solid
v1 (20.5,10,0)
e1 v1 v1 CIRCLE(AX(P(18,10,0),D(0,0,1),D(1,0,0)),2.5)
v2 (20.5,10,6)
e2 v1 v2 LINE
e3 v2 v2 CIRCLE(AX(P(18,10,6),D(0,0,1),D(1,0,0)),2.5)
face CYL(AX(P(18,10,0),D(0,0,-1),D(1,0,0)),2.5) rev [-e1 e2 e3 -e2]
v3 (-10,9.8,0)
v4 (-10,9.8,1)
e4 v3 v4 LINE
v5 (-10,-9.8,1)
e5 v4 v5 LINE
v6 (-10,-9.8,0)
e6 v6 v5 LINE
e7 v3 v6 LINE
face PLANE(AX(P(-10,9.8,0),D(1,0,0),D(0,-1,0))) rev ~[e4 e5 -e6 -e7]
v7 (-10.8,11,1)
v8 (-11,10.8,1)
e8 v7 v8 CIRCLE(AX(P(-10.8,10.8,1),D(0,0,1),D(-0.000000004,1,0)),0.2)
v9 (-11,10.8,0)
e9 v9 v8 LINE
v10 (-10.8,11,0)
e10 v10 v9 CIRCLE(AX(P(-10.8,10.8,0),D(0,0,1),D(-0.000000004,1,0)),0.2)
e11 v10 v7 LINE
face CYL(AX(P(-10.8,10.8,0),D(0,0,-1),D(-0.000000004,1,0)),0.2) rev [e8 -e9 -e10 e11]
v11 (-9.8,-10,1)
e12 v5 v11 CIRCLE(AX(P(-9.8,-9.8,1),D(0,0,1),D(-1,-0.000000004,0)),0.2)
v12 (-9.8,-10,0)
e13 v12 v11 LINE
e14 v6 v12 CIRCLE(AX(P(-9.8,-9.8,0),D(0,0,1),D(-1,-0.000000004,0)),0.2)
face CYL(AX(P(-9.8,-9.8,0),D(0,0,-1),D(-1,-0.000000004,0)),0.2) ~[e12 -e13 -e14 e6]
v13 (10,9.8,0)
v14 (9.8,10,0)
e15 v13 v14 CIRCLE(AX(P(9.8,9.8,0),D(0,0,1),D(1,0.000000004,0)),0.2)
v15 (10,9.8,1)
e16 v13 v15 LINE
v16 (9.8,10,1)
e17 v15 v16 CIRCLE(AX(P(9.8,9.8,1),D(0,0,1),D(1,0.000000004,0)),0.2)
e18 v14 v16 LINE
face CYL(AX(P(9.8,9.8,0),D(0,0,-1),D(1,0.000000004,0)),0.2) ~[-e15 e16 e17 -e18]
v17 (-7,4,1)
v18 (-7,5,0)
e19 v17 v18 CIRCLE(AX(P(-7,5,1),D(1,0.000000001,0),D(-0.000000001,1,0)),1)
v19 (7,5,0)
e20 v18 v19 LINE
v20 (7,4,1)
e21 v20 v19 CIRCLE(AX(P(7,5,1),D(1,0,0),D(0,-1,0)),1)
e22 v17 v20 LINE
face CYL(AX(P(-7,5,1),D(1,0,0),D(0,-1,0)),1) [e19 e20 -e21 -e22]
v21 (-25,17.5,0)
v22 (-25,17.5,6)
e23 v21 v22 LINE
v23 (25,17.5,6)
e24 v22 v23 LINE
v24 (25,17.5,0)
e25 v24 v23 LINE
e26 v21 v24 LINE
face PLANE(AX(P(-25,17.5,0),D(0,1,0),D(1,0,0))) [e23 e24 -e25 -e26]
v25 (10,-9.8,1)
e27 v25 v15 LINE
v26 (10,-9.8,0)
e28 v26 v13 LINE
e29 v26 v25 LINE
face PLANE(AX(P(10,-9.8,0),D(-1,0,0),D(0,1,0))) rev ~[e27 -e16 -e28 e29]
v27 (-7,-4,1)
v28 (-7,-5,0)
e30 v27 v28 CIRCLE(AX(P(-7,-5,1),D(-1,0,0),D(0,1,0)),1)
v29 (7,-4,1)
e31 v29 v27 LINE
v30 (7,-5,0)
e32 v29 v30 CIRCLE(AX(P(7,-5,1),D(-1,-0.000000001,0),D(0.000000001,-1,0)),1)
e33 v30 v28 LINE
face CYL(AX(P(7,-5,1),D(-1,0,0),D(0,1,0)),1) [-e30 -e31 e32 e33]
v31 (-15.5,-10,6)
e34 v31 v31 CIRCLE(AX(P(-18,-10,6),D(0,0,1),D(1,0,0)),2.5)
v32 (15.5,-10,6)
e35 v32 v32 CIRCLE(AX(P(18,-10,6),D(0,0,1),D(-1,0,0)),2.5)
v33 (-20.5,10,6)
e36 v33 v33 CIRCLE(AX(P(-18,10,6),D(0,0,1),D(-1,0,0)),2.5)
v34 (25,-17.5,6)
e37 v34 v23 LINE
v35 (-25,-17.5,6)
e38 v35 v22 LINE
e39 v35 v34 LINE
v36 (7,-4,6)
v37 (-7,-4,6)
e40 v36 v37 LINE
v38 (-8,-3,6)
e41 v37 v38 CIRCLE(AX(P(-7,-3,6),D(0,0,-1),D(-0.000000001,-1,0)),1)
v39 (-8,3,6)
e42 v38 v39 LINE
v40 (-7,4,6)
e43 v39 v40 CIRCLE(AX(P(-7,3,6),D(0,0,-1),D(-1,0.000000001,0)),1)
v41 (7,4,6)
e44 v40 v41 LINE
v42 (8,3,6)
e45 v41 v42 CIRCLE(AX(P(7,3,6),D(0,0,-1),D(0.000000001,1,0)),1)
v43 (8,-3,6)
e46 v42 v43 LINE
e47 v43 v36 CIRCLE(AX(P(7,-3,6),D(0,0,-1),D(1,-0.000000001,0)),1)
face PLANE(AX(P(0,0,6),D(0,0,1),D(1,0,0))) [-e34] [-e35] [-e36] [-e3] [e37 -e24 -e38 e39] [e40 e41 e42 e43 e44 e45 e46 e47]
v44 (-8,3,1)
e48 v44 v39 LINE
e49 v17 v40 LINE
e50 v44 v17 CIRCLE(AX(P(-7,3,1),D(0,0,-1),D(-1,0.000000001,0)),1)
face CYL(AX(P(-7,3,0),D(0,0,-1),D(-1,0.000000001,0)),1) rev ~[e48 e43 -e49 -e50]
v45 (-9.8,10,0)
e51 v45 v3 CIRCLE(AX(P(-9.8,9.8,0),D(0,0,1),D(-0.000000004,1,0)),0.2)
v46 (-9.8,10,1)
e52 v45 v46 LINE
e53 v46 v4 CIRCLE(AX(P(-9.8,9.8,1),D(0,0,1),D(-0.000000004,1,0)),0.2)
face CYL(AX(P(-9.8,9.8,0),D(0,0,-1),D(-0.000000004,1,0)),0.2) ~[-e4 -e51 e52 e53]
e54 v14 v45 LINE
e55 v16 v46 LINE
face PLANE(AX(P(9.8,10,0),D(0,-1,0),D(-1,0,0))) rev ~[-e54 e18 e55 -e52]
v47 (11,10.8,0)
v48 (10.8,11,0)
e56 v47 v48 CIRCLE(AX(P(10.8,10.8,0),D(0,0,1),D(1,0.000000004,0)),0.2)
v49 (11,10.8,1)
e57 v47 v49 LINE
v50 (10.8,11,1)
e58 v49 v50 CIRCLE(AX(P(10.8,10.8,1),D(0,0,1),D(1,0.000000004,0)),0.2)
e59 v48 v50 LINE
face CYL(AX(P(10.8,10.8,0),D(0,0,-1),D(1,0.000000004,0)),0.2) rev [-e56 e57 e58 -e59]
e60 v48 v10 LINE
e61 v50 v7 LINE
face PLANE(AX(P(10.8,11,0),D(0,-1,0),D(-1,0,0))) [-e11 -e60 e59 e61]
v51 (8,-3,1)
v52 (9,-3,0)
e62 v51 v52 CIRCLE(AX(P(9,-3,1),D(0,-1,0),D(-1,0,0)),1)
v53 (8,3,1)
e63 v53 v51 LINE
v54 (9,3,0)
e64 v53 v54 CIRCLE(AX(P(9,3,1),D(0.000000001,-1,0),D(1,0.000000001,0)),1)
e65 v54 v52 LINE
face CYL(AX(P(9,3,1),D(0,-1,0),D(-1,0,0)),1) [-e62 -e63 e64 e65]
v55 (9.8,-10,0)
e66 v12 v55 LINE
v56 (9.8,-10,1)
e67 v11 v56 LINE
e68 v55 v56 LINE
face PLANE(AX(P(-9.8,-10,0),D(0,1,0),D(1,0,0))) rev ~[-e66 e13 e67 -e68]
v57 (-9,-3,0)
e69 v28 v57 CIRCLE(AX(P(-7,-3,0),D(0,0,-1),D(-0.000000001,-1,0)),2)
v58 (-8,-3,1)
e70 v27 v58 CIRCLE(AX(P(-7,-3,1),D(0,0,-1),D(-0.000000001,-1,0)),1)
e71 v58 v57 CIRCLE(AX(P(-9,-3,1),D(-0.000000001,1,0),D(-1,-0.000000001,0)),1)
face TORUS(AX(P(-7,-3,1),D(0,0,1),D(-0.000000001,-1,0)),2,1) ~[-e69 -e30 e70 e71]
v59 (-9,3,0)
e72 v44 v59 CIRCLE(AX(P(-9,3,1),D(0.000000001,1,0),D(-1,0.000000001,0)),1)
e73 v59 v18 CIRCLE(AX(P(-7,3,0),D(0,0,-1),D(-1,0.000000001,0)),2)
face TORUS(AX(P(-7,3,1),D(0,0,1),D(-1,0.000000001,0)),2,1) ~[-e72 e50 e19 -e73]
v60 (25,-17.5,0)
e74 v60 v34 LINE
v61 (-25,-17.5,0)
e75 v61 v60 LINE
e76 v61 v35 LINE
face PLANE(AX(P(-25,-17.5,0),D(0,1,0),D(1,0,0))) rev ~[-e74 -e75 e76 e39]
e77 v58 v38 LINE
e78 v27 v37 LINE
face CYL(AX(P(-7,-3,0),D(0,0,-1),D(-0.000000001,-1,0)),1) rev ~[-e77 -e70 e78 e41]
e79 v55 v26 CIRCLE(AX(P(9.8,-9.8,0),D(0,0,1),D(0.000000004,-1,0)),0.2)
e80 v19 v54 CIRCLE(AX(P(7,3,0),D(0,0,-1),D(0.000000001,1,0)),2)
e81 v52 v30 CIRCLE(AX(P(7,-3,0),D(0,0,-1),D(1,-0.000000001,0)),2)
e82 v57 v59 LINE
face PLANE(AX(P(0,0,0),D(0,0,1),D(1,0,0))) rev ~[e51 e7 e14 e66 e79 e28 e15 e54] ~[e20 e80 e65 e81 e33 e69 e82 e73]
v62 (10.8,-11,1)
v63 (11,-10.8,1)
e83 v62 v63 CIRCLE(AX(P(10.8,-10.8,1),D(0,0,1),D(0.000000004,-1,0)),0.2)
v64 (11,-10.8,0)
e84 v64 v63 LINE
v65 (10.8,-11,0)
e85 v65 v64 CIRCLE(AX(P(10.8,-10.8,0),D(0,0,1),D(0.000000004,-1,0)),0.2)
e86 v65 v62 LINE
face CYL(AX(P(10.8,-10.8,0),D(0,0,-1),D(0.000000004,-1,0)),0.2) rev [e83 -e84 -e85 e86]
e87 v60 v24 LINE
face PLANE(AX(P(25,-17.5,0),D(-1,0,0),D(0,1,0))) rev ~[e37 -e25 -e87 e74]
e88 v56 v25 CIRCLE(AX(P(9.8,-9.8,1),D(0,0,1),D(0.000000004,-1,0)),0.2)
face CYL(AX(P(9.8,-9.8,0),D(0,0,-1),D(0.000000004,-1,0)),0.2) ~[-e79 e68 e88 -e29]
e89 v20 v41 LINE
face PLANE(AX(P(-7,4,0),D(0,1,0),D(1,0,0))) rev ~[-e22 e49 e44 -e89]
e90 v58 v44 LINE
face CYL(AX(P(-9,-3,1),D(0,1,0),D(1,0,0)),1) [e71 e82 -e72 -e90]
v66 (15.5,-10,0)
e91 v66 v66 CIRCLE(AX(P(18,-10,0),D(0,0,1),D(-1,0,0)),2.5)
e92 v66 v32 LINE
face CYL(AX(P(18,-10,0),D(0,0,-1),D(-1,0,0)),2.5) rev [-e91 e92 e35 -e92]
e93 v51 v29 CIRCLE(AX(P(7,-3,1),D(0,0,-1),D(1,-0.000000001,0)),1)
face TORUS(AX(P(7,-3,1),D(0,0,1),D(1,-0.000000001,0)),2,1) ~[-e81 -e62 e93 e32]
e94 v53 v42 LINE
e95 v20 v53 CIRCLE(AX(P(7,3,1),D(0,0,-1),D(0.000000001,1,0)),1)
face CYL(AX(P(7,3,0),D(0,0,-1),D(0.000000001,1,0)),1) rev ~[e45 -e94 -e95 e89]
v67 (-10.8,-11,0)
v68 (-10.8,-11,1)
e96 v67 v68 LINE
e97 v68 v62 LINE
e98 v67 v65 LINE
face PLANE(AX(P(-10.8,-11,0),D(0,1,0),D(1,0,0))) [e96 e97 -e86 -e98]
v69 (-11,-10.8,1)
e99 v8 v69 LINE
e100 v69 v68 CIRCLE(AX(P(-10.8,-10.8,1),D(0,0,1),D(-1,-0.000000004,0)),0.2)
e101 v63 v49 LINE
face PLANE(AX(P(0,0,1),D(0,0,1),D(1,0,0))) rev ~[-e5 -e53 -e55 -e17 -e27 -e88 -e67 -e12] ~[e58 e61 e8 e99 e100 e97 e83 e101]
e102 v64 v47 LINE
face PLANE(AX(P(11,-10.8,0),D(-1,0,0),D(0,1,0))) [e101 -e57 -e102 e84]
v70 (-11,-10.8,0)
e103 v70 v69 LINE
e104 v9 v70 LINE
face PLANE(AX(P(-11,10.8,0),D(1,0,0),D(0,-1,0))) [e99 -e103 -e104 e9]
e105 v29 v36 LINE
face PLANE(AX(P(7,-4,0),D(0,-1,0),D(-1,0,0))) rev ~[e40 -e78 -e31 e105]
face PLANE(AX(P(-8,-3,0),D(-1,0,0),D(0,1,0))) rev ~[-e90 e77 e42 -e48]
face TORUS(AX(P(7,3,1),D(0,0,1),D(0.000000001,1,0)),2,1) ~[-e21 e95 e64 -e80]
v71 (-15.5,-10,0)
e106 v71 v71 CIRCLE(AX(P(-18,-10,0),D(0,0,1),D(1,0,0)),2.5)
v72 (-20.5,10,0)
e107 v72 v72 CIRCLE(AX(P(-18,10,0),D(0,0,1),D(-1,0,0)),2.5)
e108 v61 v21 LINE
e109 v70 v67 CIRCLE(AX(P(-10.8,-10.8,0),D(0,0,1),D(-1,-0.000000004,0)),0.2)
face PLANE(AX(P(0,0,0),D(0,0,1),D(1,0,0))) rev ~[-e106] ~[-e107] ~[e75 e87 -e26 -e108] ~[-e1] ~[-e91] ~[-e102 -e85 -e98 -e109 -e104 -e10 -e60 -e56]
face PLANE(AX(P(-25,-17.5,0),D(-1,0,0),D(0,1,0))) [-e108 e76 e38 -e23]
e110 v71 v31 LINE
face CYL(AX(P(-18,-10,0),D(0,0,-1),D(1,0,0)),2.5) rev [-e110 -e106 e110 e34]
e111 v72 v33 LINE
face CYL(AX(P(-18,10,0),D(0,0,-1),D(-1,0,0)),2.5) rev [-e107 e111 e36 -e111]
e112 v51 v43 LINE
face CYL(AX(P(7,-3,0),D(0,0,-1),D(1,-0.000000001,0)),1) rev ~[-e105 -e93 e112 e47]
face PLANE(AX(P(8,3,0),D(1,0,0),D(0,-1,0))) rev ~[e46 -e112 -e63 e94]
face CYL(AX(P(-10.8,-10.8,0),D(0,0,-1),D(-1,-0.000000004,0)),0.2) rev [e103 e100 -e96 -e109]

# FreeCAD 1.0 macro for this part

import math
import FreeCAD as App
import Part
import Sketcher


def edges_at(feature, points):
    """Names of the edges that pass closest to the given points."""
    edges = feature.Shape.Edges
    near = lambda p: min(range(len(edges)), key=lambda i: edges[i].distToShape(Part.Vertex(*p))[0])
    return sorted({f"Edge{near(p) + 1}" for p in points})


def add_polygon(sketch, points):
    """Adds a closed chain of lines whose ends are joined by coincident constraints."""
    first, n = sketch.GeometryCount, len(points)
    for a, b in zip(points, points[1:] + points[:1]):
        sketch.addGeometry(Part.LineSegment(App.Vector(*a, 0), App.Vector(*b, 0)), False)
    for i in range(n):
        sketch.addConstraint(Sketcher.Constraint("Coincident", first + i, 2, first + (i + 1) % n, 1))

doc = App.newDocument("Part")
body = doc.addObject("PartDesign::Body", "Body")

# Sketch on XY plane
sketch1 = doc.addObject("Sketcher::SketchObject", "Sketch")
body.addObject(sketch1)
sketch1.AttachmentSupport = (doc.XY_Plane, [""])
sketch1.MapMode = "FlatFace"
add_polygon(sketch1, [(-25, 17.5), (-25, -17.5), (25, -17.5), (25, 17.5)])  # lines 0-3
sketch1.addGeometry(Part.Circle(App.Vector(-18, -10, 0), App.Vector(0, 0, 1), 2.5), False)  # 4
sketch1.addGeometry(Part.Circle(App.Vector(18, -10, 0), App.Vector(0, 0, 1), 2.5), False)  # 5
sketch1.addGeometry(Part.Circle(App.Vector(-18, 10, 0), App.Vector(0, 0, 1), 2.5), False)  # 6
sketch1.addGeometry(Part.ArcOfCircle(Part.Circle(App.Vector(-7, 3, 0), App.Vector(0, 0, 1), 1), math.radians(90), math.radians(180)), False)  # 7
sketch1.addGeometry(Part.LineSegment(App.Vector(-7, 4, 0), App.Vector(7, 4, 0)), False)  # 8
sketch1.addGeometry(Part.ArcOfCircle(Part.Circle(App.Vector(7, 3, 0), App.Vector(0, 0, 1), 1), math.radians(0), math.radians(90)), False)  # 9
sketch1.addGeometry(Part.LineSegment(App.Vector(8, 3, 0), App.Vector(8, -3, 0)), False)  # 10
sketch1.addGeometry(Part.ArcOfCircle(Part.Circle(App.Vector(7, -3, 0), App.Vector(0, 0, 1), 1), math.radians(-90), math.radians(0)), False)  # 11
sketch1.addGeometry(Part.LineSegment(App.Vector(7, -4, 0), App.Vector(-7, -4, 0)), False)  # 12
sketch1.addGeometry(Part.ArcOfCircle(Part.Circle(App.Vector(-7, -3, 0), App.Vector(0, 0, 1), 1), math.radians(-180), math.radians(-90)), False)  # 13
sketch1.addGeometry(Part.LineSegment(App.Vector(-8, -3, 0), App.Vector(-8, 3, 0)), False)  # 14
sketch1.addGeometry(Part.Circle(App.Vector(18, 10, 0), App.Vector(0, 0, 1), 2.5), False)  # 15
sketch1.addConstraint([
    Sketcher.Constraint("Tangent", 7, 1, 8, 1),
    Sketcher.Constraint("Tangent", 8, 2, 9, 2),
    Sketcher.Constraint("Tangent", 9, 1, 10, 1),
    Sketcher.Constraint("Tangent", 10, 2, 11, 2),
    Sketcher.Constraint("Tangent", 11, 1, 12, 1),
    Sketcher.Constraint("Tangent", 12, 2, 13, 2),
    Sketcher.Constraint("Tangent", 13, 1, 14, 1),
    Sketcher.Constraint("Tangent", 14, 2, 7, 2),
    Sketcher.Constraint("Vertical", 0),
    Sketcher.Constraint("Horizontal", 1),
    Sketcher.Constraint("Vertical", 2),
    Sketcher.Constraint("Horizontal", 3),
    Sketcher.Constraint("Horizontal", 8),
    Sketcher.Constraint("Vertical", 10),
    Sketcher.Constraint("Horizontal", 12),
    Sketcher.Constraint("Vertical", 14),
    Sketcher.Constraint("Equal", 4, 5),
    Sketcher.Constraint("Equal", 5, 6),
    Sketcher.Constraint("Equal", 7, 9),
    Sketcher.Constraint("Equal", 9, 11),
    Sketcher.Constraint("Equal", 11, 13),
    Sketcher.Constraint("Equal", 6, 15),
    Sketcher.Constraint("Symmetric", 5, 3, 6, 3, -1, 1),
    Sketcher.Constraint("Symmetric", 7, 3, 11, 3, -1, 1),
    Sketcher.Constraint("Symmetric", 4, 3, 15, 3, -1, 1),
    Sketcher.Constraint("Symmetric", 0, 2, 2, 2, -1, 1),
    Sketcher.Constraint("Symmetric", 4, 3, 5, 3, -2),
    Sketcher.Constraint("Diameter", 4, 5.0),
    Sketcher.Constraint("Radius", 7, 1.0),
    Sketcher.Constraint("DistanceX", 1, 1, 1, 2, 50.0),
    Sketcher.Constraint("DistanceX", 8, 1, 8, 2, 14.0),
    Sketcher.Constraint("DistanceY", 0, 2, 0, 1, 35.0),
    Sketcher.Constraint("DistanceY", 10, 2, 10, 1, 6.0),
    Sketcher.Constraint("DistanceX", 4, 3, -1, 1, 18.0),
    Sketcher.Constraint("DistanceY", 4, 3, -1, 1, 10.0),
])
pad1 = doc.addObject("PartDesign::Pad", "Pad")
body.addObject(pad1)
pad1.Profile = sketch1
pad1.Length = 6

# Sketch on XY plane
sketch2 = doc.addObject("Sketcher::SketchObject", "Sketch001")
body.addObject(sketch2)
sketch2.AttachmentSupport = (doc.XY_Plane, [""])
sketch2.MapMode = "FlatFace"
sketch2.addGeometry([
    Part.LineSegment(App.Vector(-10.8, -11, 0), App.Vector(10.8, -11, 0)),  # 0
    Part.ArcOfCircle(Part.Circle(App.Vector(10.8, -10.8, 0), App.Vector(0, 0, 1), 0.2), math.radians(-90), math.radians(0)),  # 1
    Part.LineSegment(App.Vector(11, -10.8, 0), App.Vector(11, 10.8, 0)),  # 2
    Part.ArcOfCircle(Part.Circle(App.Vector(10.8, 10.8, 0), App.Vector(0, 0, 1), 0.2), math.radians(0), math.radians(90)),  # 3
    Part.LineSegment(App.Vector(10.8, 11, 0), App.Vector(-10.8, 11, 0)),  # 4
    Part.ArcOfCircle(Part.Circle(App.Vector(-10.8, 10.8, 0), App.Vector(0, 0, 1), 0.2), math.radians(90), math.radians(180)),  # 5
    Part.LineSegment(App.Vector(-11, 10.8, 0), App.Vector(-11, -10.8, 0)),  # 6
    Part.ArcOfCircle(Part.Circle(App.Vector(-10.8, -10.8, 0), App.Vector(0, 0, 1), 0.2), math.radians(-180), math.radians(-90)),  # 7
    Part.LineSegment(App.Vector(9.8, -10, 0), App.Vector(-9.8, -10, 0)),  # 8
    Part.ArcOfCircle(Part.Circle(App.Vector(-9.8, -9.8, 0), App.Vector(0, 0, 1), 0.2), math.radians(-180), math.radians(-90)),  # 9
    Part.LineSegment(App.Vector(-10, -9.8, 0), App.Vector(-10, 9.8, 0)),  # 10
    Part.ArcOfCircle(Part.Circle(App.Vector(-9.8, 9.8, 0), App.Vector(0, 0, 1), 0.2), math.radians(90), math.radians(180)),  # 11
    Part.LineSegment(App.Vector(-9.8, 10, 0), App.Vector(9.8, 10, 0)),  # 12
    Part.ArcOfCircle(Part.Circle(App.Vector(9.8, 9.8, 0), App.Vector(0, 0, 1), 0.2), math.radians(0), math.radians(90)),  # 13
    Part.LineSegment(App.Vector(10, 9.8, 0), App.Vector(10, -9.8, 0)),  # 14
    Part.ArcOfCircle(Part.Circle(App.Vector(9.8, -9.8, 0), App.Vector(0, 0, 1), 0.2), math.radians(-90), math.radians(0)),  # 15
], False)
sketch2.addConstraint([
    Sketcher.Constraint("Tangent", 0, 2, 1, 1),
    Sketcher.Constraint("Tangent", 1, 2, 2, 1),
    Sketcher.Constraint("Tangent", 2, 2, 3, 1),
    Sketcher.Constraint("Tangent", 3, 2, 4, 1),
    Sketcher.Constraint("Tangent", 4, 2, 5, 1),
    Sketcher.Constraint("Tangent", 5, 2, 6, 1),
    Sketcher.Constraint("Tangent", 6, 2, 7, 1),
    Sketcher.Constraint("Tangent", 7, 2, 0, 1),
    Sketcher.Constraint("Tangent", 8, 2, 9, 2),
    Sketcher.Constraint("Tangent", 9, 1, 10, 1),
    Sketcher.Constraint("Tangent", 10, 2, 11, 2),
    Sketcher.Constraint("Tangent", 11, 1, 12, 1),
    Sketcher.Constraint("Tangent", 12, 2, 13, 2),
    Sketcher.Constraint("Tangent", 13, 1, 14, 1),
    Sketcher.Constraint("Tangent", 14, 2, 15, 2),
    Sketcher.Constraint("Tangent", 15, 1, 8, 1),
    Sketcher.Constraint("Horizontal", 0),
    Sketcher.Constraint("Vertical", 2),
    Sketcher.Constraint("Horizontal", 4),
    Sketcher.Constraint("Vertical", 6),
    Sketcher.Constraint("Horizontal", 8),
    Sketcher.Constraint("Vertical", 10),
    Sketcher.Constraint("Horizontal", 12),
    Sketcher.Constraint("Vertical", 14),
    Sketcher.Constraint("Equal", 1, 3),
    Sketcher.Constraint("Equal", 3, 5),
    Sketcher.Constraint("Equal", 5, 7),
    Sketcher.Constraint("Equal", 7, 9),
    Sketcher.Constraint("Equal", 9, 11),
    Sketcher.Constraint("Equal", 11, 13),
    Sketcher.Constraint("Equal", 13, 15),
    Sketcher.Constraint("Symmetric", 1, 3, 5, 3, -1, 1),
    Sketcher.Constraint("Symmetric", 9, 3, 13, 3, -1, 1),
    Sketcher.Constraint("Equal", 4, 2),
    Sketcher.Constraint("Equal", 12, 10),
    Sketcher.Constraint("Radius", 1, 0.2),
    Sketcher.Constraint("DistanceX", 0, 1, 0, 2, 21.6),
    Sketcher.Constraint("DistanceX", 8, 2, 8, 1, 19.6),
])
pocket1 = doc.addObject("PartDesign::Pocket", "Pocket")
body.addObject(pocket1)
pocket1.Profile = sketch2
pocket1.Length = 1
pocket1.Reversed = True
doc.recompute()

fillet = doc.addObject("PartDesign::Fillet", "Fillet")
body.addObject(fillet)
fillet.Base = (pocket1, edges_at(pocket1, [
    (-7.707, 3.707, 0),
    (-8, 0, 0),
    (-7.707, -3.707, 0),
    (0, -4, 0),
    (7.707, -3.707, 0),
    (8, 0, 0),
    (0, 4, 0),
    (7.707, 3.707, 0),
]))
fillet.Radius = 1

doc.recompute()
